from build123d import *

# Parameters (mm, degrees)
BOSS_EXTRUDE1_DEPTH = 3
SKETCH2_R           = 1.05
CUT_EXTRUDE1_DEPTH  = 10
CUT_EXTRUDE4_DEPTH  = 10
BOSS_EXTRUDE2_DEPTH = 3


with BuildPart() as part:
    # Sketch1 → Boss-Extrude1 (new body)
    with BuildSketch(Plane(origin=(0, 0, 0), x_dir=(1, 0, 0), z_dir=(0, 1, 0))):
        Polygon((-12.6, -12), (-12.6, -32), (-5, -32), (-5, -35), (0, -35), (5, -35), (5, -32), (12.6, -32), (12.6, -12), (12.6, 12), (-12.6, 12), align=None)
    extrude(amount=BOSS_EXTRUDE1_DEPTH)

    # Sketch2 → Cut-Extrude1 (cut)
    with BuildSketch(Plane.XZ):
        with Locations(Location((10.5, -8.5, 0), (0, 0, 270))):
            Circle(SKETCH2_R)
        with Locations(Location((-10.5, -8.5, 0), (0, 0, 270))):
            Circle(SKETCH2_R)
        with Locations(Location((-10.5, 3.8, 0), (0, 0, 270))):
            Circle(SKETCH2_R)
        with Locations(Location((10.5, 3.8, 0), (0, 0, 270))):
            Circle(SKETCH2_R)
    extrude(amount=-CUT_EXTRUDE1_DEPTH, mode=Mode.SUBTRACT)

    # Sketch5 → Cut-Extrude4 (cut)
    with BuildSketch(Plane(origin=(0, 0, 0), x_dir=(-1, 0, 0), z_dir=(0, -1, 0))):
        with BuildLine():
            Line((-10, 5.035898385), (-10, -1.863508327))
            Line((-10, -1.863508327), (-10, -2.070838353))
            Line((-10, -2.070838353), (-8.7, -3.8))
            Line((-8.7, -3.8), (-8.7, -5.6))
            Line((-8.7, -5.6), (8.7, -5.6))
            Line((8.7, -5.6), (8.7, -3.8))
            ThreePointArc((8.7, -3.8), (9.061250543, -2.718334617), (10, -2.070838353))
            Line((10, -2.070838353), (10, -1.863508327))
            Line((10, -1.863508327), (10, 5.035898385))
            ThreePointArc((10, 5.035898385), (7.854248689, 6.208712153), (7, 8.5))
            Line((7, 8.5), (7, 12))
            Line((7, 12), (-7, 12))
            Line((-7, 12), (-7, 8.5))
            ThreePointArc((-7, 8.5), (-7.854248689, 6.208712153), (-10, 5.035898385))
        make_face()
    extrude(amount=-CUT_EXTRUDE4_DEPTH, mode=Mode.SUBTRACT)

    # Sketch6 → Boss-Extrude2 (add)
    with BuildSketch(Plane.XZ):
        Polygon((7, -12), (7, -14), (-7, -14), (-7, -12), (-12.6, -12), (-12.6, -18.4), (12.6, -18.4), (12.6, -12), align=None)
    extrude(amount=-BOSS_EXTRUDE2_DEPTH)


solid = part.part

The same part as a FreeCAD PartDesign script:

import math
import FreeCAD as App
import Part
import Sketcher

V = App.Vector
Q = App.Units.Quantity

doc = App.newDocument("Part")
body = doc.addObject("PartDesign::Body", "Body")

# Sketch on XZ plane
sketch1 = body.newObject("Sketcher::SketchObject", "Sketch")
sketch1.AttachmentSupport = (doc.getObject("XZ_Plane"), [""])
sketch1.MapMode = "FlatFace"
sketch1.addGeometry(Part.LineSegment(V(-12.6, 32, 0), V(-5, 32, 0)), False)
sketch1.addGeometry(Part.LineSegment(V(-5, 32, 0), V(-5, 35, 0)), False)
sketch1.addGeometry(Part.LineSegment(V(-5, 35, 0), V(5, 35, 0)), False)
sketch1.addGeometry(Part.LineSegment(V(5, 35, 0), V(5, 32, 0)), False)
sketch1.addGeometry(Part.LineSegment(V(5, 32, 0), V(12.6, 32, 0)), False)
sketch1.addGeometry(Part.LineSegment(V(12.6, 32, 0), V(12.6, -12, 0)), False)
sketch1.addGeometry(Part.LineSegment(V(12.6, -12, 0), V(-12.6, -12, 0)), False)
sketch1.addGeometry(Part.LineSegment(V(-12.6, -12, 0), V(-12.6, 32, 0)), False)
sketch1.addConstraint(Sketcher.Constraint("Coincident", 0, 2, 1, 1))
sketch1.addConstraint(Sketcher.Constraint("Coincident", 1, 2, 2, 1))
sketch1.addConstraint(Sketcher.Constraint("Coincident", 2, 2, 3, 1))
sketch1.addConstraint(Sketcher.Constraint("Coincident", 3, 2, 4, 1))
sketch1.addConstraint(Sketcher.Constraint("Coincident", 4, 2, 5, 1))
sketch1.addConstraint(Sketcher.Constraint("Coincident", 5, 2, 6, 1))
sketch1.addConstraint(Sketcher.Constraint("Coincident", 6, 2, 7, 1))
sketch1.addConstraint(Sketcher.Constraint("Coincident", 7, 2, 0, 1))
sketch1.addConstraint(Sketcher.Constraint("Horizontal", 0))
sketch1.addConstraint(Sketcher.Constraint("Vertical", 1))
sketch1.addConstraint(Sketcher.Constraint("Horizontal", 2))
sketch1.addConstraint(Sketcher.Constraint("Vertical", 3))
sketch1.addConstraint(Sketcher.Constraint("Horizontal", 4))
sketch1.addConstraint(Sketcher.Constraint("Vertical", 5))
sketch1.addConstraint(Sketcher.Constraint("Horizontal", 6))
sketch1.addConstraint(Sketcher.Constraint("Vertical", 7))
sketch1.addConstraint(Sketcher.Constraint("Symmetric", 0, 2, 3, 2, -2))
sketch1.addConstraint(Sketcher.Constraint("Equal", 0, 4))
sketch1.addConstraint(Sketcher.Constraint("DistanceX", 2, 1, 2, 2, Q("10 mm")))
sketch1.addConstraint(Sketcher.Constraint("DistanceY", 1, 1, 1, 2, Q("3 mm")))
sketch1.addConstraint(Sketcher.Constraint("DistanceY", 5, 2, 5, 1, Q("44 mm")))
sketch1.addConstraint(Sketcher.Constraint("DistanceX", 0, 1, 0, 2, Q("7.6 mm")))
sketch1.addConstraint(Sketcher.Constraint("DistanceY", -1, 1, 0, 2, Q("32 mm")))
pad1 = body.newObject("PartDesign::Pad", "Pad")
pad1.Profile = sketch1
pad1.Length = 3
pad1.Reversed = True

# Sketch on XZ plane
sketch2 = body.newObject("Sketcher::SketchObject", "Sketch001")
sketch2.AttachmentSupport = (doc.getObject("XZ_Plane"), [""])
sketch2.MapMode = "FlatFace"
sketch2.addGeometry(Part.Circle(V(10.5, -8.5, 0), V(0, 0, 1), 1.1), False)
sketch2.addGeometry(Part.Circle(V(-10.5, -8.5, 0), V(0, 0, 1), 1.1), False)
sketch2.addGeometry(Part.Circle(V(-10.5, 3.8, 0), V(0, 0, 1), 1.1), False)
sketch2.addGeometry(Part.Circle(V(10.5, 3.8, 0), V(0, 0, 1), 1.1), False)
sketch2.addConstraint(Sketcher.Constraint("Equal", 0, 1))
sketch2.addConstraint(Sketcher.Constraint("Equal", 1, 2))
sketch2.addConstraint(Sketcher.Constraint("Equal", 2, 3))
sketch2.addConstraint(Sketcher.Constraint("Symmetric", 0, 3, 1, 3, -2))
sketch2.addConstraint(Sketcher.Constraint("Symmetric", 2, 3, 3, 3, -2))
sketch2.addConstraint(Sketcher.Constraint("Vertical", 1, 3, 2, 3))
sketch2.addConstraint(Sketcher.Constraint("Diameter", 0, Q("2.1 mm")))
sketch2.addConstraint(Sketcher.Constraint("DistanceX", 1, 3, 0, 3, Q("21 mm")))
sketch2.addConstraint(Sketcher.Constraint("DistanceY", 0, 3, -1, 1, Q("8.5 mm")))
sketch2.addConstraint(Sketcher.Constraint("DistanceY", -1, 1, 2, 3, Q("3.8 mm")))
pocket1 = body.newObject("PartDesign::Pocket", "Pocket")
pocket1.Profile = sketch2
pocket1.Length = 10

# Sketch on XZ plane
sketch3 = body.newObject("Sketcher::SketchObject", "Sketch002")
sketch3.AttachmentSupport = (doc.getObject("XZ_Plane"), [""])
sketch3.MapMode = "FlatFace"
sketch3.addGeometry(Part.LineSegment(V(10, -5, 0), V(10, 2.1, 0)), False)
sketch3.addGeometry(Part.LineSegment(V(10, 2.1, 0), V(8.7, 3.8, 0)), False)
sketch3.addGeometry(Part.LineSegment(V(8.7, 3.8, 0), V(8.7, 5.6, 0)), False)
sketch3.addGeometry(Part.LineSegment(V(8.7, 5.6, 0), V(-8.7, 5.6, 0)), False)
sketch3.addGeometry(Part.LineSegment(V(-8.7, 5.6, 0), V(-8.7, 3.8, 0)), False)
sketch3.addGeometry(Part.ArcOfCircle(Part.Circle(V(-10.5, 3.8, 0), V(0, 0, 1), 1.8), math.radians(-74), math.radians(0)), False)
sketch3.addGeometry(Part.LineSegment(V(-10, 2.1, 0), V(-10, -5, 0)), False)
sketch3.addGeometry(Part.ArcOfCircle(Part.Circle(V(-10.5, -8.5, 0), V(0, 0, 1), 3.5), math.radians(0), math.radians(82)), False)
sketch3.addGeometry(Part.LineSegment(V(-7, -8.5, 0), V(-7, -12, 0)), False)
sketch3.addGeometry(Part.LineSegment(V(-7, -12, 0), V(7, -12, 0)), False)
sketch3.addGeometry(Part.LineSegment(V(7, -12, 0), V(7, -8.5, 0)), False)
sketch3.addGeometry(Part.ArcOfCircle(Part.Circle(V(10.5, -8.5, 0), V(0, 0, 1), 3.5), math.radians(98), math.radians(180)), False)
sketch3.addConstraint(Sketcher.Constraint("Coincident", 0, 2, 1, 1))
sketch3.addConstraint(Sketcher.Constraint("Coincident", 1, 2, 2, 1))
sketch3.addConstraint(Sketcher.Constraint("Coincident", 2, 2, 3, 1))
sketch3.addConstraint(Sketcher.Constraint("Coincident", 3, 2, 4, 1))
sketch3.addConstraint(Sketcher.Constraint("Tangent", 4, 2, 5, 2))
sketch3.addConstraint(Sketcher.Constraint("Coincident", 5, 1, 6, 1))
sketch3.addConstraint(Sketcher.Constraint("Coincident", 6, 2, 7, 2))
sketch3.addConstraint(Sketcher.Constraint("Tangent", 7, 1, 8, 1))
sketch3.addConstraint(Sketcher.Constraint("Coincident", 8, 2, 9, 1))
sketch3.addConstraint(Sketcher.Constraint("Coincident", 9, 2, 10, 1))
sketch3.addConstraint(Sketcher.Constraint("Tangent", 10, 2, 11, 2))
sketch3.addConstraint(Sketcher.Constraint("Coincident", 11, 1, 0, 1))
sketch3.addConstraint(Sketcher.Constraint("Vertical", 0))
sketch3.addConstraint(Sketcher.Constraint("Vertical", 2))
sketch3.addConstraint(Sketcher.Constraint("Horizontal", 3))
sketch3.addConstraint(Sketcher.Constraint("Vertical", 4))
sketch3.addConstraint(Sketcher.Constraint("Vertical", 6))
sketch3.addConstraint(Sketcher.Constraint("Vertical", 8))
sketch3.addConstraint(Sketcher.Constraint("Horizontal", 9))
sketch3.addConstraint(Sketcher.Constraint("Vertical", 10))
sketch3.addConstraint(Sketcher.Constraint("Equal", 7, 11))
sketch3.addConstraint(Sketcher.Constraint("Symmetric", 7, 3, 11, 3, -2))
sketch3.addConstraint(Sketcher.Constraint("Symmetric", 1, 2, 4, 2, -2))
sketch3.addConstraint(Sketcher.Constraint("Symmetric", 0, 2, 5, 1, -2))
sketch3.addConstraint(Sketcher.Constraint("Vertical", 5, 3, 7, 3))
sketch3.addConstraint(Sketcher.Constraint("Radius", 5, Q("1.8 mm")))
sketch3.addConstraint(Sketcher.Constraint("Radius", 7, Q("3.5 mm")))
sketch3.addConstraint(Sketcher.Constraint("DistanceX", 9, 1, 9, 2, Q("14 mm")))
sketch3.addConstraint(Sketcher.Constraint("DistanceY", 2, 1, 2, 2, Q("1.8 mm")))
sketch3.addConstraint(Sketcher.Constraint("DistanceY", 8, 2, 8, 1, Q("3.5 mm")))
sketch3.addConstraint(Sketcher.Constraint("DistanceX", -1, 1, 0, 2, Q("10 mm")))
sketch3.addConstraint(Sketcher.Constraint("DistanceY", 8, 2, -1, 1, Q("12 mm")))
sketch3.addConstraint(Sketcher.Constraint("DistanceY", -1, 1, 5, 3, Q("3.8 mm")))
pocket2 = body.newObject("PartDesign::Pocket", "Pocket001")
pocket2.Profile = sketch3
pocket2.Length = 10

# Sketch on XZ plane
sketch4 = body.newObject("Sketcher::SketchObject", "Sketch003")
sketch4.AttachmentSupport = (doc.getObject("XZ_Plane"), [""])
sketch4.MapMode = "FlatFace"
sketch4.addGeometry(Part.LineSegment(V(7, -12, 0), V(7, -14, 0)), False)
sketch4.addGeometry(Part.LineSegment(V(7, -14, 0), V(-7, -14, 0)), False)
sketch4.addGeometry(Part.LineSegment(V(-7, -14, 0), V(-7, -12, 0)), False)
sketch4.addGeometry(Part.LineSegment(V(-7, -12, 0), V(-12.6, -12, 0)), False)
sketch4.addGeometry(Part.LineSegment(V(-12.6, -12, 0), V(-12.6, -18.4, 0)), False)
sketch4.addGeometry(Part.LineSegment(V(-12.6, -18.4, 0), V(12.6, -18.4, 0)), False)
sketch4.addGeometry(Part.LineSegment(V(12.6, -18.4, 0), V(12.6, -12, 0)), False)
sketch4.addGeometry(Part.LineSegment(V(12.6, -12, 0), V(7, -12, 0)), False)
sketch4.addConstraint(Sketcher.Constraint("Coincident", 0, 2, 1, 1))
sketch4.addConstraint(Sketcher.Constraint("Coincident", 1, 2, 2, 1))
sketch4.addConstraint(Sketcher.Constraint("Coincident", 2, 2, 3, 1))
sketch4.addConstraint(Sketcher.Constraint("Coincident", 3, 2, 4, 1))
sketch4.addConstraint(Sketcher.Constraint("Coincident", 4, 2, 5, 1))
sketch4.addConstraint(Sketcher.Constraint("Coincident", 5, 2, 6, 1))
sketch4.addConstraint(Sketcher.Constraint("Coincident", 6, 2, 7, 1))
sketch4.addConstraint(Sketcher.Constraint("Coincident", 7, 2, 0, 1))
sketch4.addConstraint(Sketcher.Constraint("Vertical", 0))
sketch4.addConstraint(Sketcher.Constraint("Horizontal", 1))
sketch4.addConstraint(Sketcher.Constraint("Vertical", 2))
sketch4.addConstraint(Sketcher.Constraint("Horizontal", 3))
sketch4.addConstraint(Sketcher.Constraint("Vertical", 4))
sketch4.addConstraint(Sketcher.Constraint("Horizontal", 5))
sketch4.addConstraint(Sketcher.Constraint("Vertical", 6))
sketch4.addConstraint(Sketcher.Constraint("Horizontal", 7))
sketch4.addConstraint(Sketcher.Constraint("Symmetric", 3, 2, 6, 2, -2))
sketch4.addConstraint(Sketcher.Constraint("Equal", 3, 7))
sketch4.addConstraint(Sketcher.Constraint("DistanceX", 1, 2, 1, 1, Q("14 mm")))
sketch4.addConstraint(Sketcher.Constraint("DistanceY", 0, 2, 0, 1, Q("2 mm")))
sketch4.addConstraint(Sketcher.Constraint("DistanceX", 3, 2, 3, 1, Q("5.6 mm")))
sketch4.addConstraint(Sketcher.Constraint("DistanceY", 4, 2, 4, 1, Q("6.4 mm")))
sketch4.addConstraint(Sketcher.Constraint("DistanceY", 0, 2, -1, 1, Q("14 mm")))
pad2 = body.newObject("PartDesign::Pad", "Pad001")
pad2.Profile = sketch4
pad2.Length = 3
pad2.Reversed = True

doc.recompute()
